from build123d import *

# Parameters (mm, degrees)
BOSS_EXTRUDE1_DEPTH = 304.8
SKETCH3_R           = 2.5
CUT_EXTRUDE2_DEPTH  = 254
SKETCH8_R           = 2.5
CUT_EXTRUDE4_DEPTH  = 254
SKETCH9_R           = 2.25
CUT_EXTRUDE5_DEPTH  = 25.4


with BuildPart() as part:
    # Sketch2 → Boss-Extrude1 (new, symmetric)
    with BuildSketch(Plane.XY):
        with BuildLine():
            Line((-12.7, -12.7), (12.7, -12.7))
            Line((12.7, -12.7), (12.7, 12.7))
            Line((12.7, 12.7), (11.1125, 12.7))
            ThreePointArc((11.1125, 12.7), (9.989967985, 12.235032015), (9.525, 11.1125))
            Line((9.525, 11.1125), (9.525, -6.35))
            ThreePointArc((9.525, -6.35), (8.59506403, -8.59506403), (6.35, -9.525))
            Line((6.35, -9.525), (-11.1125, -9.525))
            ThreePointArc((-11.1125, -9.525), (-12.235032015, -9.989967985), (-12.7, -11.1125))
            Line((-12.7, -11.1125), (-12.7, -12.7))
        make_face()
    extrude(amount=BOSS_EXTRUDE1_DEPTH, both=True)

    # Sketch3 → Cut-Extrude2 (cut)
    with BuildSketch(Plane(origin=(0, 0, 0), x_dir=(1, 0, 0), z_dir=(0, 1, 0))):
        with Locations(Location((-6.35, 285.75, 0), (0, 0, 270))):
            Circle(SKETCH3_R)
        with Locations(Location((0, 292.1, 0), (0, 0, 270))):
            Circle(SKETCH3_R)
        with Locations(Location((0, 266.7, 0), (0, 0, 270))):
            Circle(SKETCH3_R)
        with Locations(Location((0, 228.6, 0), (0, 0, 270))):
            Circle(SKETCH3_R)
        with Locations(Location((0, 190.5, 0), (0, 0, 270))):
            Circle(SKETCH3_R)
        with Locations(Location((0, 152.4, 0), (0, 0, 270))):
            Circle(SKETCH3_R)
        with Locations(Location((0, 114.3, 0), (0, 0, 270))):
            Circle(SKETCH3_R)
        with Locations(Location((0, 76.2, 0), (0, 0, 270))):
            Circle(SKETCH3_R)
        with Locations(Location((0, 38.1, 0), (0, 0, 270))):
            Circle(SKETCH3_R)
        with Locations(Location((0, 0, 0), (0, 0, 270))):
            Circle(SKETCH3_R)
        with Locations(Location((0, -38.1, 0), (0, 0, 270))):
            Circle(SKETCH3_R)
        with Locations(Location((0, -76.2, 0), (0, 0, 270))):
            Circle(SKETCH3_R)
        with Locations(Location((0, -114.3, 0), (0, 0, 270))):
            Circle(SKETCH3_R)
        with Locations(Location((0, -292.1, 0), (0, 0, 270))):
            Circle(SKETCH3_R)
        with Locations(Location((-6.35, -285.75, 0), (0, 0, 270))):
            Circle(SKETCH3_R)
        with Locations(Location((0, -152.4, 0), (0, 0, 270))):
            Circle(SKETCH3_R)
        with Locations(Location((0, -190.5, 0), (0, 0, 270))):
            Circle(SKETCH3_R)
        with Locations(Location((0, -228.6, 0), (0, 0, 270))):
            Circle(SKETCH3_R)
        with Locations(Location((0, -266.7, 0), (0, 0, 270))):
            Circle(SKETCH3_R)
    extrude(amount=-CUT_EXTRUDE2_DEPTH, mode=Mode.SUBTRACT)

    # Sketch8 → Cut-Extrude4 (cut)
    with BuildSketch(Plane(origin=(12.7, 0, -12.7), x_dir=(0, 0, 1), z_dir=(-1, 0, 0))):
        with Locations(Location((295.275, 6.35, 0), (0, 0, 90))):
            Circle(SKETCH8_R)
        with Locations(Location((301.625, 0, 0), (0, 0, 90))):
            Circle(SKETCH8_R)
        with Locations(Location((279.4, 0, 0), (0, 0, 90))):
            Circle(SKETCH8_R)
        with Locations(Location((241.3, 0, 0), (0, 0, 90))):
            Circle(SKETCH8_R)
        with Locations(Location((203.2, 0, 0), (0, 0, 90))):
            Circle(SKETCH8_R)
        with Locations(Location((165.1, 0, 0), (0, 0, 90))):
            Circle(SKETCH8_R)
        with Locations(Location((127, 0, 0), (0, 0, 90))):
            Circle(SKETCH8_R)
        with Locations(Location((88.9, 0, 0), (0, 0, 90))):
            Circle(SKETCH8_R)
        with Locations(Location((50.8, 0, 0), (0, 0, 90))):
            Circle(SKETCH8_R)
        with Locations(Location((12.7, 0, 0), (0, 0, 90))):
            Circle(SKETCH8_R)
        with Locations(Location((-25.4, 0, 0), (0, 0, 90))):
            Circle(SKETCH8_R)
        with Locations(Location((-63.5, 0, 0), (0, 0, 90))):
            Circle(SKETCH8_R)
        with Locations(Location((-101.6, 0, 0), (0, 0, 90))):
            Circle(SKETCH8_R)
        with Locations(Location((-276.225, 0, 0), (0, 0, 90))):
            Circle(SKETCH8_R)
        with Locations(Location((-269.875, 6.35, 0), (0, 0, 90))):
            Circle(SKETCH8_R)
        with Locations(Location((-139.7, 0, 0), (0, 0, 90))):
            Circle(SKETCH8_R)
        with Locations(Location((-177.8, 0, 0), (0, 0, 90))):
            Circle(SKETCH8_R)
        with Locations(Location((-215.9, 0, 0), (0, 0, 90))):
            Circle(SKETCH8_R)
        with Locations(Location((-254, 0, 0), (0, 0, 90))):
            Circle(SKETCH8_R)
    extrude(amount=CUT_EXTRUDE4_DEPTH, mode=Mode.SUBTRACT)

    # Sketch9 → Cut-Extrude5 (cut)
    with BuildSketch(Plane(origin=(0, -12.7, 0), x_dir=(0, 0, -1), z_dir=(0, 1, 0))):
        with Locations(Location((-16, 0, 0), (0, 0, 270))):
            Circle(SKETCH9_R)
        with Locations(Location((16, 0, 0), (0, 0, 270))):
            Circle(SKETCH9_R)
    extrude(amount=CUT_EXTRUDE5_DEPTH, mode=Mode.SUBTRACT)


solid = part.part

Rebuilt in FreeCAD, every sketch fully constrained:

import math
import FreeCAD as App
import Part
import Sketcher

V = App.Vector
Q = App.Units.Quantity

doc = App.newDocument("Part")
body = doc.addObject("PartDesign::Body", "Body")

# Sketch on XY plane
sketch1 = doc.addObject("Sketcher::SketchObject", "Sketch")
body.addObject(sketch1)
sketch1.AttachmentSupport = (doc.XY_Plane, [""])
sketch1.MapMode = "FlatFace"
sketch1.addGeometry(Part.LineSegment(V(-12.7, -12.7, 0), V(12.7, -12.7, 0)), False)
sketch1.addGeometry(Part.LineSegment(V(12.7, -12.7, 0), V(12.7, 12.7, 0)), False)
sketch1.addGeometry(Part.LineSegment(V(12.7, 12.7, 0), V(11.1125, 12.7, 0)), False)
sketch1.addGeometry(Part.ArcOfCircle(Part.Circle(V(11.1125, 11.1125, 0), V(0, 0, 1), 1.5875), math.radians(90), math.radians(180)), False)
sketch1.addGeometry(Part.LineSegment(V(9.525, 11.1125, 0), V(9.525, -6.35, 0)), False)
sketch1.addGeometry(Part.ArcOfCircle(Part.Circle(V(6.35, -6.35, 0), V(0, 0, 1), 3.175), math.radians(-90), math.radians(0)), False)
sketch1.addGeometry(Part.LineSegment(V(6.35, -9.525, 0), V(-11.1125, -9.525, 0)), False)
sketch1.addGeometry(Part.ArcOfCircle(Part.Circle(V(-11.1125, -11.1125, 0), V(0, 0, 1), 1.5875), math.radians(90), math.radians(180)), False)
sketch1.addGeometry(Part.LineSegment(V(-12.7, -11.1125, 0), V(-12.7, -12.7, 0)), False)
sketch1.addConstraint(Sketcher.Constraint("Coincident", 0, 2, 1, 1))
sketch1.addConstraint(Sketcher.Constraint("Coincident", 1, 2, 2, 1))
sketch1.addConstraint(Sketcher.Constraint("Tangent", 2, 2, 3, 1))
sketch1.addConstraint(Sketcher.Constraint("Tangent", 3, 2, 4, 1))
sketch1.addConstraint(Sketcher.Constraint("Tangent", 4, 2, 5, 2))
sketch1.addConstraint(Sketcher.Constraint("Tangent", 5, 1, 6, 1))
sketch1.addConstraint(Sketcher.Constraint("Tangent", 6, 2, 7, 1))
sketch1.addConstraint(Sketcher.Constraint("Tangent", 7, 2, 8, 1))
sketch1.addConstraint(Sketcher.Constraint("Coincident", 8, 2, 0, 1))
sketch1.addConstraint(Sketcher.Constraint("Horizontal", 0))
sketch1.addConstraint(Sketcher.Constraint("Vertical", 1))
sketch1.addConstraint(Sketcher.Constraint("Horizontal", 2))
sketch1.addConstraint(Sketcher.Constraint("Vertical", 4))
sketch1.addConstraint(Sketcher.Constraint("Horizontal", 6))
sketch1.addConstraint(Sketcher.Constraint("Vertical", 8))
sketch1.addConstraint(Sketcher.Constraint("Equal", 3, 7))
sketch1.addConstraint(Sketcher.Constraint("Symmetric", 3, 3, 7, 3, -1, 1))
sketch1.addConstraint(Sketcher.Constraint("Symmetric", 1, 2, 8, 2, -1, 1))
sketch1.addConstraint(Sketcher.Constraint("Equal", 0, 1))
sketch1.addConstraint(Sketcher.Constraint("DistanceX", 0, 1, 0, 2, Q("1 in")))
sketch1.addConstraint(Sketcher.Constraint("Radius", 3, Q("0.0625 in")))
sketch1.addConstraint(Sketcher.Constraint("Radius", 5, Q("0.125 in")))
pad1 = doc.addObject("PartDesign::Pad", "Pad")
body.addObject(pad1)
pad1.Profile = sketch1
pad1.Length = Q("24 in")
pad1.Midplane = True

# Sketch on XZ plane
sketch2 = doc.addObject("Sketcher::SketchObject", "Sketch001")
body.addObject(sketch2)
sketch2.AttachmentSupport = (doc.XZ_Plane, [""])
sketch2.MapMode = "FlatFace"
sketch2.addGeometry(Part.Circle(V(-6.35, -285.75, 0), V(0, 0, 1), 2.5), False)
sketch2.addGeometry(Part.Circle(V(0, -292.1, 0), V(0, 0, 1), 2.5), False)
sketch2.addGeometry(Part.Circle(V(0, -266.7, 0), V(0, 0, 1), 2.5), False)
sketch2.addGeometry(Part.Circle(V(0, -228.6, 0), V(0, 0, 1), 2.5), False)
sketch2.addGeometry(Part.Circle(V(0, -190.5, 0), V(0, 0, 1), 2.5), False)
sketch2.addGeometry(Part.Circle(V(0, -152.4, 0), V(0, 0, 1), 2.5), False)
sketch2.addGeometry(Part.Circle(V(0, -114.3, 0), V(0, 0, 1), 2.5), False)
sketch2.addGeometry(Part.Circle(V(0, -76.2, 0), V(0, 0, 1), 2.5), False)
sketch2.addGeometry(Part.Circle(V(0, -38.1, 0), V(0, 0, 1), 2.5), False)
sketch2.addGeometry(Part.Circle(V(0, 0, 0), V(0, 0, 1), 2.5), False)
sketch2.addGeometry(Part.Circle(V(0, 38.1, 0), V(0, 0, 1), 2.5), False)
sketch2.addGeometry(Part.Circle(V(0, 76.2, 0), V(0, 0, 1), 2.5), False)
sketch2.addGeometry(Part.Circle(V(0, 114.3, 0), V(0, 0, 1), 2.5), False)
sketch2.addGeometry(Part.Circle(V(0, 292.1, 0), V(0, 0, 1), 2.5), False)
sketch2.addGeometry(Part.Circle(V(-6.35, 285.75, 0), V(0, 0, 1), 2.5), False)
sketch2.addGeometry(Part.Circle(V(0, 152.4, 0), V(0, 0, 1), 2.5), False)
sketch2.addGeometry(Part.Circle(V(0, 190.5, 0), V(0, 0, 1), 2.5), False)
sketch2.addGeometry(Part.Circle(V(0, 228.6, 0), V(0, 0, 1), 2.5), False)
sketch2.addGeometry(Part.Circle(V(0, 266.7, 0), V(0, 0, 1), 2.5), False)
sketch2.addConstraint(Sketcher.Constraint("Coincident", 9, 3, -1, 1))
sketch2.addConstraint(Sketcher.Constraint("Equal", 0, 1))
sketch2.addConstraint(Sketcher.Constraint("Equal", 1, 2))
sketch2.addConstraint(Sketcher.Constraint("Equal", 2, 3))
sketch2.addConstraint(Sketcher.Constraint("Equal", 3, 4))
sketch2.addConstraint(Sketcher.Constraint("Equal", 4, 5))
sketch2.addConstraint(Sketcher.Constraint("Equal", 5, 6))
sketch2.addConstraint(Sketcher.Constraint("Equal", 6, 7))
sketch2.addConstraint(Sketcher.Constraint("Equal", 7, 8))
sketch2.addConstraint(Sketcher.Constraint("Equal", 8, 9))
sketch2.addConstraint(Sketcher.Constraint("Equal", 9, 10))
sketch2.addConstraint(Sketcher.Constraint("Equal", 10, 11))
sketch2.addConstraint(Sketcher.Constraint("Equal", 11, 12))
sketch2.addConstraint(Sketcher.Constraint("Equal", 12, 13))
sketch2.addConstraint(Sketcher.Constraint("Equal", 13, 14))
sketch2.addConstraint(Sketcher.Constraint("Equal", 14, 15))
sketch2.addConstraint(Sketcher.Constraint("Equal", 15, 16))
sketch2.addConstraint(Sketcher.Constraint("Equal", 16, 17))
sketch2.addConstraint(Sketcher.Constraint("Equal", 17, 18))
sketch2.addConstraint(Sketcher.Constraint("Symmetric", 8, 3, 10, 3, -1, 1))
sketch2.addConstraint(Sketcher.Constraint("Symmetric", 7, 3, 11, 3, -1, 1))
sketch2.addConstraint(Sketcher.Constraint("Symmetric", 6, 3, 12, 3, -1, 1))
sketch2.addConstraint(Sketcher.Constraint("Symmetric", 1, 3, 13, 3, -1, 1))
sketch2.addConstraint(Sketcher.Constraint("Symmetric", 5, 3, 15, 3, -1, 1))
sketch2.addConstraint(Sketcher.Constraint("Symmetric", 4, 3, 16, 3, -1, 1))
sketch2.addConstraint(Sketcher.Constraint("Symmetric", 3, 3, 17, 3, -1, 1))
sketch2.addConstraint(Sketcher.Constraint("Symmetric", 2, 3, 18, 3, -1, 1))
sketch2.addConstraint(Sketcher.Constraint("Symmetric", 0, 3, 14, 3, -1))
sketch2.addConstraint(Sketcher.Constraint("PointOnObject", 1, 3, -2))
sketch2.addConstraint(Sketcher.Constraint("PointOnObject", 2, 3, -2))
sketch2.addConstraint(Sketcher.Constraint("PointOnObject", 3, 3, -2))
sketch2.addConstraint(Sketcher.Constraint("PointOnObject", 4, 3, -2))
sketch2.addConstraint(Sketcher.Constraint("PointOnObject", 5, 3, -2))
sketch2.addConstraint(Sketcher.Constraint("PointOnObject", 6, 3, -2))
sketch2.addConstraint(Sketcher.Constraint("PointOnObject", 7, 3, -2))
sketch2.addConstraint(Sketcher.Constraint("PointOnObject", 8, 3, -2))
sketch2.addConstraint(Sketcher.Constraint("DistanceY", 3, 3, -1, 1, Q("9 in")))
sketch2.addConstraint(Sketcher.Constraint("DistanceY", 5, 3, -1, 1, Q("6 in")))
sketch2.addConstraint(Sketcher.Constraint("DistanceY", 7, 3, -1, 1, Q("3 in")))
sketch2.addConstraint(Sketcher.Constraint("DistanceY", 1, 3, 2, 3, Q("1 in")))
sketch2.addConstraint(Sketcher.Constraint("DistanceY", 2, 3, 4, 3, Q("3 in")))
sketch2.addConstraint(Sketcher.Constraint("DistanceY", 4, 3, 6, 3, Q("3 in")))
sketch2.addConstraint(Sketcher.Constraint("DistanceY", 6, 3, 8, 3, Q("3 in")))
sketch2.addConstraint(Sketcher.Constraint("DistanceY", 8, 3, 10, 3, Q("3 in")))
sketch2.addConstraint(Sketcher.Constraint("Diameter", 0, Q("5 mm")))
sketch2.addConstraint(Sketcher.Constraint("DistanceX", 0, 3, -1, 1, Q("0.25 in")))
sketch2.addConstraint(Sketcher.Constraint("DistanceY", 0, 3, -1, 1, Q("11.25 in")))
pocket1 = doc.addObject("PartDesign::Pocket", "Pocket")
body.addObject(pocket1)
pocket1.Profile = sketch2
pocket1.Length = Q("10 in")
pocket1.Reversed = True

# Sketch on YZ plane
sketch3 = doc.addObject("Sketcher::SketchObject", "Sketch002")
body.addObject(sketch3)
sketch3.AttachmentSupport = (doc.YZ_Plane, [""])
sketch3.MapMode = "FlatFace"
sketch3.AttachmentOffset = App.Placement(V(0, 0, 0.5 * 25.4), App.Rotation())
sketch3.addGeometry(Part.Circle(V(6.35, 282.575, 0), V(0, 0, 1), 2.5), False)
sketch3.addGeometry(Part.Circle(V(0, 288.925, 0), V(0, 0, 1), 2.5), False)
sketch3.addGeometry(Part.Circle(V(0, 266.7, 0), V(0, 0, 1), 2.5), False)
sketch3.addGeometry(Part.Circle(V(0, 228.6, 0), V(0, 0, 1), 2.5), False)
sketch3.addGeometry(Part.Circle(V(0, 190.5, 0), V(0, 0, 1), 2.5), False)
sketch3.addGeometry(Part.Circle(V(0, 152.4, 0), V(0, 0, 1), 2.5), False)
sketch3.addGeometry(Part.Circle(V(0, 114.3, 0), V(0, 0, 1), 2.5), False)
sketch3.addGeometry(Part.Circle(V(0, 76.2, 0), V(0, 0, 1), 2.5), False)
sketch3.addGeometry(Part.Circle(V(0, 38.1, 0), V(0, 0, 1), 2.5), False)
sketch3.addGeometry(Part.Circle(V(0, 0, 0), V(0, 0, 1), 2.5), False)
sketch3.addGeometry(Part.Circle(V(0, -38.1, 0), V(0, 0, 1), 2.5), False)
sketch3.addGeometry(Part.Circle(V(0, -76.2, 0), V(0, 0, 1), 2.5), False)
sketch3.addGeometry(Part.Circle(V(0, -114.3, 0), V(0, 0, 1), 2.5), False)
sketch3.addGeometry(Part.Circle(V(0, -288.925, 0), V(0, 0, 1), 2.5), False)
sketch3.addGeometry(Part.Circle(V(6.35, -282.575, 0), V(0, 0, 1), 2.5), False)
sketch3.addGeometry(Part.Circle(V(0, -152.4, 0), V(0, 0, 1), 2.5), False)
sketch3.addGeometry(Part.Circle(V(0, -190.5, 0), V(0, 0, 1), 2.5), False)
sketch3.addGeometry(Part.Circle(V(0, -228.6, 0), V(0, 0, 1), 2.5), False)
sketch3.addGeometry(Part.Circle(V(0, -266.7, 0), V(0, 0, 1), 2.5), False)
sketch3.addConstraint(Sketcher.Constraint("Coincident", 9, 3, -1, 1))
sketch3.addConstraint(Sketcher.Constraint("Equal", 0, 1))
sketch3.addConstraint(Sketcher.Constraint("Equal", 1, 2))
sketch3.addConstraint(Sketcher.Constraint("Equal", 2, 3))
sketch3.addConstraint(Sketcher.Constraint("Equal", 3, 4))
sketch3.addConstraint(Sketcher.Constraint("Equal", 4, 5))
sketch3.addConstraint(Sketcher.Constraint("Equal", 5, 6))
sketch3.addConstraint(Sketcher.Constraint("Equal", 6, 7))
sketch3.addConstraint(Sketcher.Constraint("Equal", 7, 8))
sketch3.addConstraint(Sketcher.Constraint("Equal", 8, 9))
sketch3.addConstraint(Sketcher.Constraint("Equal", 9, 10))
sketch3.addConstraint(Sketcher.Constraint("Equal", 10, 11))
sketch3.addConstraint(Sketcher.Constraint("Equal", 11, 12))
sketch3.addConstraint(Sketcher.Constraint("Equal", 12, 13))
sketch3.addConstraint(Sketcher.Constraint("Equal", 13, 14))
sketch3.addConstraint(Sketcher.Constraint("Equal", 14, 15))
sketch3.addConstraint(Sketcher.Constraint("Equal", 15, 16))
sketch3.addConstraint(Sketcher.Constraint("Equal", 16, 17))
sketch3.addConstraint(Sketcher.Constraint("Equal", 17, 18))
sketch3.addConstraint(Sketcher.Constraint("Symmetric", 8, 3, 10, 3, -1, 1))
sketch3.addConstraint(Sketcher.Constraint("Symmetric", 7, 3, 11, 3, -1, 1))
sketch3.addConstraint(Sketcher.Constraint("Symmetric", 6, 3, 12, 3, -1, 1))
sketch3.addConstraint(Sketcher.Constraint("Symmetric", 1, 3, 13, 3, -1, 1))
sketch3.addConstraint(Sketcher.Constraint("Symmetric", 5, 3, 15, 3, -1, 1))
sketch3.addConstraint(Sketcher.Constraint("Symmetric", 4, 3, 16, 3, -1, 1))
sketch3.addConstraint(Sketcher.Constraint("Symmetric", 3, 3, 17, 3, -1, 1))
sketch3.addConstraint(Sketcher.Constraint("Symmetric", 2, 3, 18, 3, -1, 1))
sketch3.addConstraint(Sketcher.Constraint("Symmetric", 0, 3, 14, 3, -1))
sketch3.addConstraint(Sketcher.Constraint("PointOnObject", 1, 3, -2))
sketch3.addConstraint(Sketcher.Constraint("PointOnObject", 2, 3, -2))
sketch3.addConstraint(Sketcher.Constraint("PointOnObject", 3, 3, -2))
sketch3.addConstraint(Sketcher.Constraint("PointOnObject", 4, 3, -2))
sketch3.addConstraint(Sketcher.Constraint("PointOnObject", 5, 3, -2))
sketch3.addConstraint(Sketcher.Constraint("PointOnObject", 6, 3, -2))
sketch3.addConstraint(Sketcher.Constraint("PointOnObject", 7, 3, -2))
sketch3.addConstraint(Sketcher.Constraint("PointOnObject", 8, 3, -2))
sketch3.addConstraint(Sketcher.Constraint("DistanceY", -1, 1, 3, 3, Q("9 in")))
sketch3.addConstraint(Sketcher.Constraint("DistanceY", -1, 1, 5, 3, Q("6 in")))
sketch3.addConstraint(Sketcher.Constraint("DistanceY", -1, 1, 7, 3, Q("3 in")))
sketch3.addConstraint(Sketcher.Constraint("DistanceY", 4, 3, 2, 3, Q("3 in")))
sketch3.addConstraint(Sketcher.Constraint("DistanceY", 6, 3, 4, 3, Q("3 in")))
sketch3.addConstraint(Sketcher.Constraint("DistanceY", 8, 3, 6, 3, Q("3 in")))
sketch3.addConstraint(Sketcher.Constraint("DistanceY", 10, 3, 8, 3, Q("3 in")))
sketch3.addConstraint(Sketcher.Constraint("Diameter", 0, Q("5 mm")))
sketch3.addConstraint(Sketcher.Constraint("DistanceX", -1, 1, 0, 3, Q("0.25 in")))
sketch3.addConstraint(Sketcher.Constraint("DistanceY", 0, 3, 1, 3, Q("0.25 in")))
sketch3.addConstraint(Sketcher.Constraint("DistanceY", -1, 1, 0, 3, Q("11.125 in")))
pocket2 = doc.addObject("PartDesign::Pocket", "Pocket001")
body.addObject(pocket2)
pocket2.Profile = sketch3
pocket2.Length = Q("10 in")

# Sketch on XZ plane
sketch4 = doc.addObject("Sketcher::SketchObject", "Sketch003")
body.addObject(sketch4)
sketch4.AttachmentSupport = (doc.XZ_Plane, [""])
sketch4.MapMode = "FlatFace"
sketch4.AttachmentOffset = App.Placement(V(0, 0, 0.5 * 25.4), App.Rotation())
sketch4.addGeometry(Part.Circle(V(0, 16, 0), V(0, 0, 1), 2.25), False)
sketch4.addGeometry(Part.Circle(V(0, -16, 0), V(0, 0, 1), 2.25), False)
sketch4.addConstraint(Sketcher.Constraint("Equal", 0, 1))
sketch4.addConstraint(Sketcher.Constraint("Symmetric", 0, 3, 1, 3, -1, 1))
sketch4.addConstraint(Sketcher.Constraint("PointOnObject", 0, 3, -2))
sketch4.addConstraint(Sketcher.Constraint("Diameter", 0, Q("4.5 mm")))
sketch4.addConstraint(Sketcher.Constraint("DistanceY", -1, 1, 0, 3, Q("16 mm")))
pocket3 = doc.addObject("PartDesign::Pocket", "Pocket002")
body.addObject(pocket3)
pocket3.Profile = sketch4
pocket3.Length = Q("1 in")

doc.recompute()
